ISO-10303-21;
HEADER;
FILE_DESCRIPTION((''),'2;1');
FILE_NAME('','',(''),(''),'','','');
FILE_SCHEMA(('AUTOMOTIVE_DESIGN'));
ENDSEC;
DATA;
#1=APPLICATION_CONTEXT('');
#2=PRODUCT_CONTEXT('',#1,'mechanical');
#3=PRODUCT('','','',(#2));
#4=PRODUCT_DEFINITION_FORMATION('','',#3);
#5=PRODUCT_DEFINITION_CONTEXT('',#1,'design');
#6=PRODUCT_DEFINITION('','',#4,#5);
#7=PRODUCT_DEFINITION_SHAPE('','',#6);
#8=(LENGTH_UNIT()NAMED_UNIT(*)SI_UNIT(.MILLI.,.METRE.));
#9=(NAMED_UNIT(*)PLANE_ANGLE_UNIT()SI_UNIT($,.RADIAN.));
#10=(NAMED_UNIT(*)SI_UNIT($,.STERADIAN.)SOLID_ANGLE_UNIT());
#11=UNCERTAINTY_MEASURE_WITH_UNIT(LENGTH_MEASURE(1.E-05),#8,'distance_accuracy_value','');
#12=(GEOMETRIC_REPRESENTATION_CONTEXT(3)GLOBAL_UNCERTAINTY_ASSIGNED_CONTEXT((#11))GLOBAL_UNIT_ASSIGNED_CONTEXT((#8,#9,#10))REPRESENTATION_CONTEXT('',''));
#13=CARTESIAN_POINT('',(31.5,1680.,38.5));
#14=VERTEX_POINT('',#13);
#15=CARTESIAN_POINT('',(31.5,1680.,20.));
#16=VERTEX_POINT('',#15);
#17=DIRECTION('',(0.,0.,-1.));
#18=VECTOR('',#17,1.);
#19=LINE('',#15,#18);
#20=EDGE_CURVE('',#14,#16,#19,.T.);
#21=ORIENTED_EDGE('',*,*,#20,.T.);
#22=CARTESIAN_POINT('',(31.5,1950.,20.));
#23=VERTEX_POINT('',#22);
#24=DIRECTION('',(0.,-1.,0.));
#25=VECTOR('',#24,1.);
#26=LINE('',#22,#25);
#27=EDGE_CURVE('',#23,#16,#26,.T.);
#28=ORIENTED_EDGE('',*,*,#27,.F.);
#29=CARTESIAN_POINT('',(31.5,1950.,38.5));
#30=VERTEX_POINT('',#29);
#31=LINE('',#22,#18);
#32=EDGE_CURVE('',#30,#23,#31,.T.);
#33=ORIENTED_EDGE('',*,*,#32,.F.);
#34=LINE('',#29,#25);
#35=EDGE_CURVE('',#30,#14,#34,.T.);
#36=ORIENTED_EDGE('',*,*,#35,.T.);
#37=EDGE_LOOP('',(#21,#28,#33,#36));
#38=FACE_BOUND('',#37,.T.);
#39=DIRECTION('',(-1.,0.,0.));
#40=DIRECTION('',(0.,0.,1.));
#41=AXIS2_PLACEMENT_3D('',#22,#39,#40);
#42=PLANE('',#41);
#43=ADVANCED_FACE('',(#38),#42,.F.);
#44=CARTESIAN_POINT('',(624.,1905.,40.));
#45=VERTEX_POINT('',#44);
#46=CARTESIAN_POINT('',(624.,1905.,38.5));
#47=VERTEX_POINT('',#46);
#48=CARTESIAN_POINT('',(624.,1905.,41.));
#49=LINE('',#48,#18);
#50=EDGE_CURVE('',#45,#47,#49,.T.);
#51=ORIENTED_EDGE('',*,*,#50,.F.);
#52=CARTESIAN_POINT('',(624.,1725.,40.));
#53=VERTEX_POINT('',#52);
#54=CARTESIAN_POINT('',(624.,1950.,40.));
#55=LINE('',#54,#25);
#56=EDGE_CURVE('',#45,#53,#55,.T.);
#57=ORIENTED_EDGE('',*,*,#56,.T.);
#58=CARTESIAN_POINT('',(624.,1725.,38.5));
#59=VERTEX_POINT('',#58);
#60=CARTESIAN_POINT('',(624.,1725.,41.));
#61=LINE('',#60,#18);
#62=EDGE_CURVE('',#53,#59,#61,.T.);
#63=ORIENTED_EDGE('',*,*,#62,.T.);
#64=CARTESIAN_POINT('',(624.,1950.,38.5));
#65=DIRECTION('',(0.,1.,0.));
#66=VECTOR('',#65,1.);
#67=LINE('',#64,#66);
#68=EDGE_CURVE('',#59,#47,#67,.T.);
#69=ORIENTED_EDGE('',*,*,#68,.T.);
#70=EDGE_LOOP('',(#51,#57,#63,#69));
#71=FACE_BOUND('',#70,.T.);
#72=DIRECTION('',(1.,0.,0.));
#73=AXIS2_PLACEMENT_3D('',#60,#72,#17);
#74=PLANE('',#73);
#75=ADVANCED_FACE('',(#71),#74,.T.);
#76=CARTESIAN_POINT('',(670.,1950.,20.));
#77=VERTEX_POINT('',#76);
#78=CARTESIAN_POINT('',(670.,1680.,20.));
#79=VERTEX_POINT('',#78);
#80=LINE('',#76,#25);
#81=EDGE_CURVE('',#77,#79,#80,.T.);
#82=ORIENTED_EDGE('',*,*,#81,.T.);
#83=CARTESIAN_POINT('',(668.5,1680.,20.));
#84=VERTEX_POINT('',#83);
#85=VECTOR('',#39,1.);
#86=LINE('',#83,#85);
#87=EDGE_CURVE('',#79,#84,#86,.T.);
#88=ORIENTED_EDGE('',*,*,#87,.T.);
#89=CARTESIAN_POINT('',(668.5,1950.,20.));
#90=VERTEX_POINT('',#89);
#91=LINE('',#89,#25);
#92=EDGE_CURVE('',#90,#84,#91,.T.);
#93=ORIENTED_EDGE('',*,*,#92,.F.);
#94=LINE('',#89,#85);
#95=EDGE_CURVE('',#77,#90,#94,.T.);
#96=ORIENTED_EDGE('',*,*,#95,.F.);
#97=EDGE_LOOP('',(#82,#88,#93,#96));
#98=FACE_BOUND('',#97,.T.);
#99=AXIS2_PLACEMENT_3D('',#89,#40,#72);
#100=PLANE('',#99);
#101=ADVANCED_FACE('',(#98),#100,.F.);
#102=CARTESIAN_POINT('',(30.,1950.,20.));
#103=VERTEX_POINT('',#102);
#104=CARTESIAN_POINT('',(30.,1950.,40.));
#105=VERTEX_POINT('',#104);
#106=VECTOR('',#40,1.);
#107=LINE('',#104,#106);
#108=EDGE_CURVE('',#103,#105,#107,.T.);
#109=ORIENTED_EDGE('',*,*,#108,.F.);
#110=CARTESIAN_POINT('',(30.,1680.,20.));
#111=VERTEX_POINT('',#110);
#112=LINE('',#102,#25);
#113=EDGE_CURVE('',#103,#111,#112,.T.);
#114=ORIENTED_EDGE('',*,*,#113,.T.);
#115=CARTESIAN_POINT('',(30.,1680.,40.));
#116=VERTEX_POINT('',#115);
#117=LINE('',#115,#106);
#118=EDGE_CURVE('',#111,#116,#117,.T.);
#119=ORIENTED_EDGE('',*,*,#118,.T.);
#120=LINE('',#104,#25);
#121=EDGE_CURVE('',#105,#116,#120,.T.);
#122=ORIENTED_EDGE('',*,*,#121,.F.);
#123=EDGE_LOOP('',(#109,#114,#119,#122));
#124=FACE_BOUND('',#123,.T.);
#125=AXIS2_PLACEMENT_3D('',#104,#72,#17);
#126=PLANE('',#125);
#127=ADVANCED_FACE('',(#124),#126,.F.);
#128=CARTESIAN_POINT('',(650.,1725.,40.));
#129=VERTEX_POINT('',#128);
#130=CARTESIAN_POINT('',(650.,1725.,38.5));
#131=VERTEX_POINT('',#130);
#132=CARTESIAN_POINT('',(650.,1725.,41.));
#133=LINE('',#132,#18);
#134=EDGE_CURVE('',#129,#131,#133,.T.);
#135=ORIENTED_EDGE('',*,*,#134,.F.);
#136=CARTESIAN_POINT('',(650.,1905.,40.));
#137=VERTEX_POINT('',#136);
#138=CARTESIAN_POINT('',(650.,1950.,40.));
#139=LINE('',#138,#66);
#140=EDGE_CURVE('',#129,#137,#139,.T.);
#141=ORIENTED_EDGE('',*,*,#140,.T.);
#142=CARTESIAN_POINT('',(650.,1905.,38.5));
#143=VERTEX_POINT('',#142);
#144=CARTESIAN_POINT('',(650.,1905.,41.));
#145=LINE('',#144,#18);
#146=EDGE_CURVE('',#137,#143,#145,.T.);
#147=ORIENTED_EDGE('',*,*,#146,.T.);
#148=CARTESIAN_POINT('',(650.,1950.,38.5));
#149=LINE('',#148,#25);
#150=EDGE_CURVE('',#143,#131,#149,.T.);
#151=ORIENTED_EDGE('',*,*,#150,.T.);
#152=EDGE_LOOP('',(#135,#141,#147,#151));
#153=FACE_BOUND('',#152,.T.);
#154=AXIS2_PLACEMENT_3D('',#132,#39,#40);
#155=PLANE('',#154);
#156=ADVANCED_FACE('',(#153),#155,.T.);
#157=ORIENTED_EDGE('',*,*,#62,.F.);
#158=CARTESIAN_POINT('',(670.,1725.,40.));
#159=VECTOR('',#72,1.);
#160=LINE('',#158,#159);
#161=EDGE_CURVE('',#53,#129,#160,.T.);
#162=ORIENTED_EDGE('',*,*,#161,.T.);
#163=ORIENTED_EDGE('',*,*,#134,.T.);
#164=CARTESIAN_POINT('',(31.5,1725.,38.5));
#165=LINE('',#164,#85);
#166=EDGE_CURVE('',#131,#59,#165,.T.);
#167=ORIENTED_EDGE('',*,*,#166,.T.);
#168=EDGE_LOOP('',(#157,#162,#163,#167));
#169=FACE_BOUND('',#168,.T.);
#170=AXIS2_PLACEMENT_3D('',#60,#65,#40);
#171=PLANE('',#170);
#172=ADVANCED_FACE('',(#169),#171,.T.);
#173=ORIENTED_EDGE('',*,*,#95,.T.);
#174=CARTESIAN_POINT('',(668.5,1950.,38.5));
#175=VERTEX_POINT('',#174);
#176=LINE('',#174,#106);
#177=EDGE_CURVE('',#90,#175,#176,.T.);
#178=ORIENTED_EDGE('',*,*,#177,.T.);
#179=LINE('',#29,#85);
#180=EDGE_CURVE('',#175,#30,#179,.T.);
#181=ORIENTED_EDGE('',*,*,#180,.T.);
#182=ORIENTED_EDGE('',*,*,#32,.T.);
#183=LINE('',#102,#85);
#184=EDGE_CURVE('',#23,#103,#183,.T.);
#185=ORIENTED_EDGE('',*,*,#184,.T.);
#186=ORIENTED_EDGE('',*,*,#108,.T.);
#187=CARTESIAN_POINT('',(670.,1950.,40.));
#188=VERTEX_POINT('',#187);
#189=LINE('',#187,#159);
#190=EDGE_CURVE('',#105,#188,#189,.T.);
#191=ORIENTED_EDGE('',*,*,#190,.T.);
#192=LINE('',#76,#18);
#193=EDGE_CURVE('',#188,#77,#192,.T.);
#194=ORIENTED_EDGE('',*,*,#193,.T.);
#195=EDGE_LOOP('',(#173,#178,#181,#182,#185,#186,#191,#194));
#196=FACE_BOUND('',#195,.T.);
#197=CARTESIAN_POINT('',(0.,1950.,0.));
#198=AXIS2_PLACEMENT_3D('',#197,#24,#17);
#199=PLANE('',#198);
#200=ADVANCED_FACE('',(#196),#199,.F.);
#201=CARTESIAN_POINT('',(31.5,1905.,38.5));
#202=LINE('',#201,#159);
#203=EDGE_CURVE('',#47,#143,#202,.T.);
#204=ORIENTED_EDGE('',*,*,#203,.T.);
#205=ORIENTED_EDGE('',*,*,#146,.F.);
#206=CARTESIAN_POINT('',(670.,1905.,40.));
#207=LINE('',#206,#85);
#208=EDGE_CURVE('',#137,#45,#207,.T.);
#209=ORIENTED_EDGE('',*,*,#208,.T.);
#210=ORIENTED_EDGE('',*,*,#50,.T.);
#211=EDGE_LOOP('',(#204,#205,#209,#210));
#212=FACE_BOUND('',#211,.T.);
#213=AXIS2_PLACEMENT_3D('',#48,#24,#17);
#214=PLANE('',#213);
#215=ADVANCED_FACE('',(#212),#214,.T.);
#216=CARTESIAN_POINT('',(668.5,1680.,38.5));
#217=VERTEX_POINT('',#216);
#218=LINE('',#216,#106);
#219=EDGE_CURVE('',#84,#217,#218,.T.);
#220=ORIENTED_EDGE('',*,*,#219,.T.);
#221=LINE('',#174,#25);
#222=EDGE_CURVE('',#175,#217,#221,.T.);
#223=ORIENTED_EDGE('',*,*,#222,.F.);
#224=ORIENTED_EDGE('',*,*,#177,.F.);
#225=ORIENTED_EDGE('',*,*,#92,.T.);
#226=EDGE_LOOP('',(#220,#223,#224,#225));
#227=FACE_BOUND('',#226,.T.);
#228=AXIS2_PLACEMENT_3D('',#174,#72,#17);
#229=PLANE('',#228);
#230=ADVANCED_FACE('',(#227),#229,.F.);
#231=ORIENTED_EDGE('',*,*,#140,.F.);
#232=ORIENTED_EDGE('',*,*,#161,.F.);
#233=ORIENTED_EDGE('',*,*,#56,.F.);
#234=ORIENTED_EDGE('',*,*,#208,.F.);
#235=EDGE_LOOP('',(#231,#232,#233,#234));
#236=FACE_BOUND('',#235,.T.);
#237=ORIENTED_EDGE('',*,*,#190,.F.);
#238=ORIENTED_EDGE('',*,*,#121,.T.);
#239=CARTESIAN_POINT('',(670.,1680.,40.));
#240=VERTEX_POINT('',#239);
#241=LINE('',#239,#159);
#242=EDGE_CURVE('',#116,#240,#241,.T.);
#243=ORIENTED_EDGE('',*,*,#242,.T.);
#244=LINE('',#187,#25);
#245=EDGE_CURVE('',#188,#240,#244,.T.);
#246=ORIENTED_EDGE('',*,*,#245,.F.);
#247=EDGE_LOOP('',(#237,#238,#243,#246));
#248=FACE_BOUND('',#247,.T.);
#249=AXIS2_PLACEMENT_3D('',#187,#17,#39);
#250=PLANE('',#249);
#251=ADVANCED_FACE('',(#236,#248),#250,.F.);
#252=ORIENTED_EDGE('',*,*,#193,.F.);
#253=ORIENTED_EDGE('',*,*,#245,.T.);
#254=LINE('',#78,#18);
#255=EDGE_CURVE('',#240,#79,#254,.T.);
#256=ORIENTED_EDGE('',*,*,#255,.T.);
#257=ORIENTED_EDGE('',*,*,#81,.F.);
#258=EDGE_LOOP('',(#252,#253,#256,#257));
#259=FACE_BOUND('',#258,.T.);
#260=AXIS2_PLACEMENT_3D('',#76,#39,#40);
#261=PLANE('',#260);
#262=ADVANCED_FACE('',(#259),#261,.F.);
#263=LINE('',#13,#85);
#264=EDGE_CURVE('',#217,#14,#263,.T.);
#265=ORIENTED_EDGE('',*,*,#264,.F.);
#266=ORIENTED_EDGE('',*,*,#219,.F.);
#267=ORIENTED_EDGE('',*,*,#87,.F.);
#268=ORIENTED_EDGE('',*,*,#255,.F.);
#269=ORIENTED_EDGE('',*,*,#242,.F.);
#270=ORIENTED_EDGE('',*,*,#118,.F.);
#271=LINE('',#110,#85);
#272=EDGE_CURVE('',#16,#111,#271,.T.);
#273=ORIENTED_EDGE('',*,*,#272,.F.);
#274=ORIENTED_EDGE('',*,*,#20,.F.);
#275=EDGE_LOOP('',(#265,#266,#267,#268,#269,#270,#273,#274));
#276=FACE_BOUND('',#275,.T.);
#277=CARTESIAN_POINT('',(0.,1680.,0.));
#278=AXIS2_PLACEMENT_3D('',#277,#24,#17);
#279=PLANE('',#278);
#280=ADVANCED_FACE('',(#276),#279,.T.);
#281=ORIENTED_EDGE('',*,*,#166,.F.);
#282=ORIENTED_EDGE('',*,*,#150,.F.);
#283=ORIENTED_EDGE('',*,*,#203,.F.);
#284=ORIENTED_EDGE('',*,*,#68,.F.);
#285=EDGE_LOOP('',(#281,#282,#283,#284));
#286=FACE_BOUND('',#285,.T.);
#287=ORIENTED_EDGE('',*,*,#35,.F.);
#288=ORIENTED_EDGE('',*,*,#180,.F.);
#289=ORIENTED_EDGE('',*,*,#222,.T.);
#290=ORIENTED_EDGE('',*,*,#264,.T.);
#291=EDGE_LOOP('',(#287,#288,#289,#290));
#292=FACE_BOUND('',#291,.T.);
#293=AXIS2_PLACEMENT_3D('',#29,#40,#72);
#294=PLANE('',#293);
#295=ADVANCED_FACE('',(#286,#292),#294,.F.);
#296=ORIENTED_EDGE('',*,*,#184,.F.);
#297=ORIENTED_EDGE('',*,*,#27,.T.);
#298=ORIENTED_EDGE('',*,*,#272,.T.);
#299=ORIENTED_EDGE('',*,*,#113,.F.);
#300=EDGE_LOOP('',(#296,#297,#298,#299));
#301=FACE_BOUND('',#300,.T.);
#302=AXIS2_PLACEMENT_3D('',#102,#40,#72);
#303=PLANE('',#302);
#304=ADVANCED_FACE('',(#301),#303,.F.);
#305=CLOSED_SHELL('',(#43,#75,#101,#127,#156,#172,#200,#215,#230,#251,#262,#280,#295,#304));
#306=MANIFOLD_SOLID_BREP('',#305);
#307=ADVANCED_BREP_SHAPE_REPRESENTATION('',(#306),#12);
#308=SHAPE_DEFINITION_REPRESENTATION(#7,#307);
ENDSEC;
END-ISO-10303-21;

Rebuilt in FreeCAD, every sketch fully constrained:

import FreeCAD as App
import Part
import Sketcher
Q = App.Units.Quantity

doc = App.newDocument("Part")
body = doc.addObject("PartDesign::Body", "Body")

sketch1 = body.newObject("Sketcher::SketchObject", "Sketch")
sketch1.AttachmentSupport = (doc.getObject("XZ_Plane"), [""])
sketch1.MapMode = "FlatFace"
sketch1.AttachmentOffset = App.Placement(App.Vector(0, 0, -1680), App.Rotation())
sketch1.addGeometry([
    Part.LineSegment(App.Vector(30, 20, 0), App.Vector(30, 40, 0)),
    Part.LineSegment(App.Vector(30, 40, 0), App.Vector(670, 40, 0)),
    Part.LineSegment(App.Vector(670, 40, 0), App.Vector(670, 20, 0)),
    Part.LineSegment(App.Vector(670, 20, 0), App.Vector(668.5, 20, 0)),
    Part.LineSegment(App.Vector(668.5, 20, 0), App.Vector(668.5, 38.5, 0)),
    Part.LineSegment(App.Vector(668.5, 38.5, 0), App.Vector(31.5, 38.5, 0)),
    Part.LineSegment(App.Vector(31.5, 38.5, 0), App.Vector(31.5, 20, 0)),
    Part.LineSegment(App.Vector(31.5, 20, 0), App.Vector(30, 20, 0)),
], False)
sketch1.addConstraint([
    Sketcher.Constraint("Coincident", 0, 2, 1, 1),
    Sketcher.Constraint("Coincident", 1, 2, 2, 1),
    Sketcher.Constraint("Coincident", 2, 2, 3, 1),
    Sketcher.Constraint("Coincident", 3, 2, 4, 1),
    Sketcher.Constraint("Coincident", 4, 2, 5, 1),
    Sketcher.Constraint("Coincident", 5, 2, 6, 1),
    Sketcher.Constraint("Coincident", 6, 2, 7, 1),
    Sketcher.Constraint("Coincident", 7, 2, 0, 1),
    Sketcher.Constraint("Vertical", 0),
    Sketcher.Constraint("Horizontal", 1),
    Sketcher.Constraint("Vertical", 2),
    Sketcher.Constraint("Horizontal", 3),
    Sketcher.Constraint("Vertical", 4),
    Sketcher.Constraint("Horizontal", 5),
    Sketcher.Constraint("Vertical", 6),
    Sketcher.Constraint("Horizontal", 7),
    Sketcher.Constraint("Horizontal", 3, 2, 6, 2),
    Sketcher.Constraint("Equal", 3, 7),
    Sketcher.Constraint("DistanceX", 1, 1, 1, 2, Q("640 mm")),
    Sketcher.Constraint("DistanceX", 5, 2, 5, 1, Q("637 mm")),
    Sketcher.Constraint("DistanceY", 0, 1, 0, 2, Q("20 mm")),
    Sketcher.Constraint("DistanceY", 4, 1, 4, 2, Q("18.5 mm")),
    Sketcher.Constraint("DistanceX", -1, 1, 0, 2, Q("30 mm")),
    Sketcher.Constraint("DistanceY", -1, 1, 0, 2, Q("40 mm")),
])
pad1 = body.newObject("PartDesign::Pad", "Pad")
pad1.Profile = sketch1
pad1.Length = 270
pad1.Reversed = True

sketch2 = body.newObject("Sketcher::SketchObject", "Sketch001")
sketch2.AttachmentSupport = (doc.getObject("XY_Plane"), [""])
sketch2.MapMode = "FlatFace"
sketch2.AttachmentOffset = App.Placement(App.Vector(0, 0, 27), App.Rotation())
sketch2.addGeometry([
    Part.LineSegment(App.Vector(624, 1905, 0), App.Vector(624, 1725, 0)),
    Part.LineSegment(App.Vector(624, 1725, 0), App.Vector(650, 1725, 0)),
    Part.LineSegment(App.Vector(650, 1725, 0), App.Vector(650, 1905, 0)),
    Part.LineSegment(App.Vector(650, 1905, 0), App.Vector(624, 1905, 0)),
], False)
sketch2.addConstraint([
    Sketcher.Constraint("Coincident", 0, 2, 1, 1),
    Sketcher.Constraint("Coincident", 1, 2, 2, 1),
    Sketcher.Constraint("Coincident", 2, 2, 3, 1),
    Sketcher.Constraint("Coincident", 3, 2, 0, 1),
    Sketcher.Constraint("Vertical", 0),
    Sketcher.Constraint("Horizontal", 1),
    Sketcher.Constraint("Vertical", 2),
    Sketcher.Constraint("Horizontal", 3),
    Sketcher.Constraint("DistanceX", 1, 1, 1, 2, Q("26 mm")),
    Sketcher.Constraint("DistanceY", 0, 2, 0, 1, Q("180 mm")),
    Sketcher.Constraint("DistanceX", -1, 1, 0, 2, Q("624 mm")),
    Sketcher.Constraint("DistanceY", -1, 1, 0, 2, Q("1725 mm")),
])
pocket1 = body.newObject("PartDesign::Pocket", "Pocket")
pocket1.Profile = sketch2
pocket1.Length = 14
pocket1.Reversed = True

doc.recompute()
